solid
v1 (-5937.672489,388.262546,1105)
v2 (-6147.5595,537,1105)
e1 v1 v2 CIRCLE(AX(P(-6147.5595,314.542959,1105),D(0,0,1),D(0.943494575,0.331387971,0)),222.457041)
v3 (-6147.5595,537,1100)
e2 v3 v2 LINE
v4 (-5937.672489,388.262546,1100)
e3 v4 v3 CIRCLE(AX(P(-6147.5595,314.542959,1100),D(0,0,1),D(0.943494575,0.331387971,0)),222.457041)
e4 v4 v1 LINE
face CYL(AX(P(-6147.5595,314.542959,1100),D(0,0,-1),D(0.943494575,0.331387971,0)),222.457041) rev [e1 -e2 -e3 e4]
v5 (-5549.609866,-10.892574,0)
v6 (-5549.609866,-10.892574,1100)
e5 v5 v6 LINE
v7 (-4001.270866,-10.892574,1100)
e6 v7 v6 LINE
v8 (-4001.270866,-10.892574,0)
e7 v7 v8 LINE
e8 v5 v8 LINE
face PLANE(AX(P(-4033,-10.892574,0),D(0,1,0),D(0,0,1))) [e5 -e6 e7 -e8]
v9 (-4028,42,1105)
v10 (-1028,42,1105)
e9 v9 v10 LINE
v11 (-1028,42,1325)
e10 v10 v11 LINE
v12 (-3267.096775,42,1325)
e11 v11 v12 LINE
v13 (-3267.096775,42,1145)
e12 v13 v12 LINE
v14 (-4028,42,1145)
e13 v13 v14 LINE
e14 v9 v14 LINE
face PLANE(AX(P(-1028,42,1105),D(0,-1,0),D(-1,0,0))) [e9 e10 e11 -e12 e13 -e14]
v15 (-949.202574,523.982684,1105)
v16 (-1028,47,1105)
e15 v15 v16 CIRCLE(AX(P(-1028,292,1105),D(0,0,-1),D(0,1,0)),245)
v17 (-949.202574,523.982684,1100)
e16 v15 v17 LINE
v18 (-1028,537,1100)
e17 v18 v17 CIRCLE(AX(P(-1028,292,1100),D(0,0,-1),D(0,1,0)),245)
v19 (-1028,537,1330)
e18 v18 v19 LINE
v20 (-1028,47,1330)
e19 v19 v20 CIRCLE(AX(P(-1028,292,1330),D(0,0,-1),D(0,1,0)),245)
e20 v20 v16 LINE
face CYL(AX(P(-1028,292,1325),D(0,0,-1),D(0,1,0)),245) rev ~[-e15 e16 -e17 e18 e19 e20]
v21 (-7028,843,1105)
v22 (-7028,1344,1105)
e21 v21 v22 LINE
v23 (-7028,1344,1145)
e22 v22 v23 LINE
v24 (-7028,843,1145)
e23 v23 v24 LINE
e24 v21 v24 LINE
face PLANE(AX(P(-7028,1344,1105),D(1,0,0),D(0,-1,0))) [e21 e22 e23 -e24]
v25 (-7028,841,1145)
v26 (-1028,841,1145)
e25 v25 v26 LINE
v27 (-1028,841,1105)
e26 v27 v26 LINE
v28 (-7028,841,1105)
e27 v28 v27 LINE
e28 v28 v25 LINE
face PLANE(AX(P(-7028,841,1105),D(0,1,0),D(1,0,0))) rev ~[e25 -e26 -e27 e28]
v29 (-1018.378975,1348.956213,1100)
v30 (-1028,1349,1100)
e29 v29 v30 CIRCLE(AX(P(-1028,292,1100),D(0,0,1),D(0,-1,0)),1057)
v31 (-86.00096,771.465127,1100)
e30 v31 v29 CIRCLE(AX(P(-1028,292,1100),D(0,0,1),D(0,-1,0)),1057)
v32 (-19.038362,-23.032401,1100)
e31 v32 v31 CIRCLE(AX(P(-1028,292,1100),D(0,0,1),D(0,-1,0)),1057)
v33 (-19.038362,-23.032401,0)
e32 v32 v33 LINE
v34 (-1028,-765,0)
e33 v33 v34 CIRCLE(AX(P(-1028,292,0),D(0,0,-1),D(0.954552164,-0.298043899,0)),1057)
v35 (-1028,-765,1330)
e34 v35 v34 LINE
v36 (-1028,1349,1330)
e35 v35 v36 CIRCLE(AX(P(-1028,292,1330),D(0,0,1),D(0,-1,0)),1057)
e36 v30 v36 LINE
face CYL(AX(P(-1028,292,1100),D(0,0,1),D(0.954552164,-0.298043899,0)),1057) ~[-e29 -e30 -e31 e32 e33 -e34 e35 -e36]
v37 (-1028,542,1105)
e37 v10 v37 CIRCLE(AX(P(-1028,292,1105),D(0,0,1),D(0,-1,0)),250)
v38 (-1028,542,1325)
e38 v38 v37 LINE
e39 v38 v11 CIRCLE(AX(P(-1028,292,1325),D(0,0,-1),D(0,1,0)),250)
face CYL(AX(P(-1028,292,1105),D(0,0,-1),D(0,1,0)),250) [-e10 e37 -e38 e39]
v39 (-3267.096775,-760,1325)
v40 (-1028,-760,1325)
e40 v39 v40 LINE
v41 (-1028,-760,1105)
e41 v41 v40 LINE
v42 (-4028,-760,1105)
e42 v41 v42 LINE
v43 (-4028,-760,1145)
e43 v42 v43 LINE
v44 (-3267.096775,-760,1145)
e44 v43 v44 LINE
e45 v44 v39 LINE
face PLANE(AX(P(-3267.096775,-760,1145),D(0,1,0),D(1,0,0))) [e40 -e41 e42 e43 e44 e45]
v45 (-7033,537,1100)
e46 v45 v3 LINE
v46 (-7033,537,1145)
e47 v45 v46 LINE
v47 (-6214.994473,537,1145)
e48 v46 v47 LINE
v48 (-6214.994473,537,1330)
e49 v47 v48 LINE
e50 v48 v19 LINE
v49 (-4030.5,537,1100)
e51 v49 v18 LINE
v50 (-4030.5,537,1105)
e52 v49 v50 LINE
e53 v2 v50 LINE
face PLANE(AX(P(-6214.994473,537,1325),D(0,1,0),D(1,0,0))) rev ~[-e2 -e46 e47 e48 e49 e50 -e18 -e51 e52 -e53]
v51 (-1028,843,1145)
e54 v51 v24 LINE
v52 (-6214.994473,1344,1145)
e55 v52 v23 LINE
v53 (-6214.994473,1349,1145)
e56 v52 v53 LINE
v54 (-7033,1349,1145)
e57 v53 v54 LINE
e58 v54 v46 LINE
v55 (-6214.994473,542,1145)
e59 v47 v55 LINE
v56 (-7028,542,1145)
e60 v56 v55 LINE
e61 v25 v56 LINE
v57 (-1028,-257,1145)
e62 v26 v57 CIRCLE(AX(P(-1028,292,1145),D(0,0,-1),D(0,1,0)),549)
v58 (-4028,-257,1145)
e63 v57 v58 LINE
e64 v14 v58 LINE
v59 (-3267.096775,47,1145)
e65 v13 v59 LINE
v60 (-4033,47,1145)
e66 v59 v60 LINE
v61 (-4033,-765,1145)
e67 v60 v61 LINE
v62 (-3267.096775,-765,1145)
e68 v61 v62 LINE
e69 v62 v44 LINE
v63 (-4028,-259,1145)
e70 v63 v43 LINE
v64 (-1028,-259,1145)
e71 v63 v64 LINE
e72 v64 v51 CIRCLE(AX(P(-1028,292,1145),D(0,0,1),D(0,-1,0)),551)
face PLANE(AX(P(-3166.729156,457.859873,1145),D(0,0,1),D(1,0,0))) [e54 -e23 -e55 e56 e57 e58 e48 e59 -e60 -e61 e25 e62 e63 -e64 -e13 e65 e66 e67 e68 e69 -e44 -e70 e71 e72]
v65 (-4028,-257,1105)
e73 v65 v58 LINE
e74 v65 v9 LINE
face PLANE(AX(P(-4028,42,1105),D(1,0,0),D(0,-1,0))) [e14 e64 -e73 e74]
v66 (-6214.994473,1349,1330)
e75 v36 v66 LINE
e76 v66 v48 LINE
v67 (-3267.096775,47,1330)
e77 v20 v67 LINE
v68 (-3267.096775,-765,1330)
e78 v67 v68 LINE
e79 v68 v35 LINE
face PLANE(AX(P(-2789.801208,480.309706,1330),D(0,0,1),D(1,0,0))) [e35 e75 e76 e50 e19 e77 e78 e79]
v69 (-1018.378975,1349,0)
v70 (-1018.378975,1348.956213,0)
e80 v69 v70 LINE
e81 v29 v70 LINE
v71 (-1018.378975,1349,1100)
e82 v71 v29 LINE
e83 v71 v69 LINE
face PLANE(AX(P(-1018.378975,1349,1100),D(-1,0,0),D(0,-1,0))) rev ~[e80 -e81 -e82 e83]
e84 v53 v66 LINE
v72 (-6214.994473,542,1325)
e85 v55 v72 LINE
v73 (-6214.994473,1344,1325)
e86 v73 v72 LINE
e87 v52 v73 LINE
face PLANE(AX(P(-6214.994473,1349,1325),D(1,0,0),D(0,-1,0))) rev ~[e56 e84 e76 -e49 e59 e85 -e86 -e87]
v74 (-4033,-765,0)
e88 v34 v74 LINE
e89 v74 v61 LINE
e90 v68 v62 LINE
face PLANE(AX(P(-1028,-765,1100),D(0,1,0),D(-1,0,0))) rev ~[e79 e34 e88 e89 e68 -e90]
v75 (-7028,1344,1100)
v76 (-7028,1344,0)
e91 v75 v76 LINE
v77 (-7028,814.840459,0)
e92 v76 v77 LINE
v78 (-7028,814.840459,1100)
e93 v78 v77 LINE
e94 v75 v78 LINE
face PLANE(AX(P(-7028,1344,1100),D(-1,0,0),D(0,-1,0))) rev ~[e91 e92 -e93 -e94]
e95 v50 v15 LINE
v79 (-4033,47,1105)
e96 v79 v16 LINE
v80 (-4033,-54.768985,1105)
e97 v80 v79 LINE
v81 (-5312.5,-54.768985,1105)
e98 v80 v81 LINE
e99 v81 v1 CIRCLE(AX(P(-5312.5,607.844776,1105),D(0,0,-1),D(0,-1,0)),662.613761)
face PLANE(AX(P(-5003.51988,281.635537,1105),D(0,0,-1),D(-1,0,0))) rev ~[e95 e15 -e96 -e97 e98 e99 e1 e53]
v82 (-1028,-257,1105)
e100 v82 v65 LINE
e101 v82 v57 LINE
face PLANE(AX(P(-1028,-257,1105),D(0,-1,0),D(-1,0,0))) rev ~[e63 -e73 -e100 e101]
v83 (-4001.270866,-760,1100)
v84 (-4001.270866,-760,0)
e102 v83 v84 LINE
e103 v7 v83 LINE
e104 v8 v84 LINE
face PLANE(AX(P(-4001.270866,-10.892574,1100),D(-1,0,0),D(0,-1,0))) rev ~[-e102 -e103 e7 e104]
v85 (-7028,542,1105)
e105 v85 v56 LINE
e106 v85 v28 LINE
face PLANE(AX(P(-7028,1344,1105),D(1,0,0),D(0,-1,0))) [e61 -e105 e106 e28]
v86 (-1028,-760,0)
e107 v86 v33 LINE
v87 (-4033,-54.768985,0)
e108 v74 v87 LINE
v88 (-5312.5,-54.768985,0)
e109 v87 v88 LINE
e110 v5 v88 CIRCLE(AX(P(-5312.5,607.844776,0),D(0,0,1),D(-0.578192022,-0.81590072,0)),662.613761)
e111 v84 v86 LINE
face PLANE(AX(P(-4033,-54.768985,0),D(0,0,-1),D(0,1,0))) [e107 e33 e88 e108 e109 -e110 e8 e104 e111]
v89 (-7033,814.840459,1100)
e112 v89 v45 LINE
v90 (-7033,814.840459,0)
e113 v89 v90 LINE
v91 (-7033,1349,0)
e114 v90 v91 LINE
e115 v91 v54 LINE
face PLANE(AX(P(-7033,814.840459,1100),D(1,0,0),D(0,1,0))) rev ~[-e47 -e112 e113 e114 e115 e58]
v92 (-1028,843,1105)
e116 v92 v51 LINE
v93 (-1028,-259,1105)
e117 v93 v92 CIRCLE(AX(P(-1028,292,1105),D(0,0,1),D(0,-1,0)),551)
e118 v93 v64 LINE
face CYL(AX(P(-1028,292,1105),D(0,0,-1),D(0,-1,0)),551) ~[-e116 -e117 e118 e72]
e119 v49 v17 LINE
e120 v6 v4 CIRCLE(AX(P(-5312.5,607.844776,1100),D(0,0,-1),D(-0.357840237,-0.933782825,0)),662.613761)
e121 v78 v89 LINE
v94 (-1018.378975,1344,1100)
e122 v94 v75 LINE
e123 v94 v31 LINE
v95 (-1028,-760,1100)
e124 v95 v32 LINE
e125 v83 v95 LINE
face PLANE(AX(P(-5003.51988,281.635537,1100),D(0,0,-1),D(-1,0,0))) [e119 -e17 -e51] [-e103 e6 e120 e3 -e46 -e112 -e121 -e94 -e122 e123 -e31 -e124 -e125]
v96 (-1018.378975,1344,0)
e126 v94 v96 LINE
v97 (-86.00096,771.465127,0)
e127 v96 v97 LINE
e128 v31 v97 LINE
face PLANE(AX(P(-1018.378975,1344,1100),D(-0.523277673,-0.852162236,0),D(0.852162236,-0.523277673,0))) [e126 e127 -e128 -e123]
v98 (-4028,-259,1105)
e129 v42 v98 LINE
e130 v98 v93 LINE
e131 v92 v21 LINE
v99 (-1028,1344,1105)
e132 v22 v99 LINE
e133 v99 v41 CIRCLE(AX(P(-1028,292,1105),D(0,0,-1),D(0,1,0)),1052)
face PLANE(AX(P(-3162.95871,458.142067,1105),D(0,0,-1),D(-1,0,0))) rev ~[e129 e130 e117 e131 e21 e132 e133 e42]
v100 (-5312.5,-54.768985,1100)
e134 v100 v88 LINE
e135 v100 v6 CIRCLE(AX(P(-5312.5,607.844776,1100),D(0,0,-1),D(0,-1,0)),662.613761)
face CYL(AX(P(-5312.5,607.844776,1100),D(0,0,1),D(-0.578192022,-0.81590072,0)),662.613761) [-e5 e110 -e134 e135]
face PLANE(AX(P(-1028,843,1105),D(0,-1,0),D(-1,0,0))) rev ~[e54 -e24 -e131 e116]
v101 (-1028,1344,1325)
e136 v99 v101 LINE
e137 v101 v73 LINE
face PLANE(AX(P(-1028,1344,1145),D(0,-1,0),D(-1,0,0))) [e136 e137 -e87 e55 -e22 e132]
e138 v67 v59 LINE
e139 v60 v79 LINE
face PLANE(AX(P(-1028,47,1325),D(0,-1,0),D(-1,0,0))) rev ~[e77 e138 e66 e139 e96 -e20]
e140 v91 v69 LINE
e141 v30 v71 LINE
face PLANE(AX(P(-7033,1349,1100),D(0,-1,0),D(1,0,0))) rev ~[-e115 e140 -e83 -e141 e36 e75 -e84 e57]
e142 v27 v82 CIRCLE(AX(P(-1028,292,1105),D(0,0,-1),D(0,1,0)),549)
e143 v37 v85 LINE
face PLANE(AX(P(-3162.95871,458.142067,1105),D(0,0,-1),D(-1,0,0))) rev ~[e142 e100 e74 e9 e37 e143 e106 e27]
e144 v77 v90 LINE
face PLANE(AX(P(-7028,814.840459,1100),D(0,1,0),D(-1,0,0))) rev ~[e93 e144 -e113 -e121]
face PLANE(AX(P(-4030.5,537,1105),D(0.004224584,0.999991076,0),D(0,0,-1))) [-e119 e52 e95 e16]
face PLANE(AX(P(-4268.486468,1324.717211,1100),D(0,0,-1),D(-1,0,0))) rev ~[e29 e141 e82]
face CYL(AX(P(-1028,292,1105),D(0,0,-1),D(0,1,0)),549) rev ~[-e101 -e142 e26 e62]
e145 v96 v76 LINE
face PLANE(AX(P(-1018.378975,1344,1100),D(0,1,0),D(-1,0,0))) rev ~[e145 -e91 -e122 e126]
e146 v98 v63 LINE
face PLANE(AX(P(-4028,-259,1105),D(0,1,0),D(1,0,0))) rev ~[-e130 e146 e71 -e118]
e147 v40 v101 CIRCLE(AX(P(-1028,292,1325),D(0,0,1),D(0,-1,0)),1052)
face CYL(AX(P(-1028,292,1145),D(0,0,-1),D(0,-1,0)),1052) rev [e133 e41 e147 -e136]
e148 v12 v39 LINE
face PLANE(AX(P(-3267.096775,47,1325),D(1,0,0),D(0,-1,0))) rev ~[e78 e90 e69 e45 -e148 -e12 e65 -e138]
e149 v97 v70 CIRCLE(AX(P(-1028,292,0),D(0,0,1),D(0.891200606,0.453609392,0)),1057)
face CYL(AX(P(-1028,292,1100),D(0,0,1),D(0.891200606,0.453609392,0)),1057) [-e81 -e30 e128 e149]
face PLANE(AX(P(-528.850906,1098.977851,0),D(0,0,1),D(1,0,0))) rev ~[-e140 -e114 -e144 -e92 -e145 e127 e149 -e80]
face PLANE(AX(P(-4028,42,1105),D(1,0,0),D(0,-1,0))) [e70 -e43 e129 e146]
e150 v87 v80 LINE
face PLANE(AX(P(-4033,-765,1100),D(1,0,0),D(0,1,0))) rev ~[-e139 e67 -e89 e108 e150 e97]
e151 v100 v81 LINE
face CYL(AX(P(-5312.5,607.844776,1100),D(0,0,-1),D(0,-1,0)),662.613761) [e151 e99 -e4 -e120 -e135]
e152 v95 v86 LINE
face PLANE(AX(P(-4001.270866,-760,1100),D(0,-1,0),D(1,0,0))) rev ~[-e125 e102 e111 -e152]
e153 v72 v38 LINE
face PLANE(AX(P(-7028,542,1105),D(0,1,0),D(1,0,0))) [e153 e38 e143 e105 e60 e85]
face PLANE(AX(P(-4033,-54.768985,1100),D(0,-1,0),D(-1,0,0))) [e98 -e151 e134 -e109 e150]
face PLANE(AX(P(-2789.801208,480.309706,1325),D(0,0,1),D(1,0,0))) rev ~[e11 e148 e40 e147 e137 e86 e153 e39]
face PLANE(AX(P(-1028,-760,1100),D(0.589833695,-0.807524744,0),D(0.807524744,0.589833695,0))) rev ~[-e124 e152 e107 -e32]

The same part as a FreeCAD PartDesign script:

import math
import FreeCAD as App
import Part
import Sketcher
from FreeCAD import Vector


def add_polygon(sketch, points):
    """Adds a closed chain of lines whose ends are joined by coincident constraints."""
    first, n = sketch.GeometryCount, len(points)
    for a, b in zip(points, points[1:] + points[:1]):
        sketch.addGeometry(Part.LineSegment(App.Vector(*a, 0), App.Vector(*b, 0)), False)
    for i in range(n):
        sketch.addConstraint(Sketcher.Constraint("Coincident", first + i, 2, first + (i + 1) % n, 1))

doc = App.newDocument("Part")
body = doc.addObject("PartDesign::Body", "Body")

# Sketch on XY plane
sketch1 = body.newObject("Sketcher::SketchObject", "Sketch")
sketch1.AttachmentSupport = (doc.getObject("XY_Plane"), [""])
sketch1.MapMode = "FlatFace"
sketch1.AttachmentOffset = App.Placement(Vector(0, 0, 1100), App.Rotation())
sketch1.addGeometry([
    Part.LineSegment(Vector(-1028, 1344, 0), Vector(-7028, 1344, 0)),  # 0
    Part.LineSegment(Vector(-7028, 1344, 0), Vector(-7028, 542, 0)),  # 1
    Part.LineSegment(Vector(-7028, 542, 0), Vector(-1028, 542, 0)),  # 2
    Part.ArcOfCircle(Part.Circle(Vector(-1028, 292, 0), Vector(0, 0, 1), 250), math.radians(-90), math.radians(90)),  # 3
    Part.LineSegment(Vector(-1028, 42, 0), Vector(-4028, 42, 0)),  # 4
    Part.LineSegment(Vector(-4028, 42, 0), Vector(-4028, -760, 0)),  # 5
    Part.LineSegment(Vector(-4028, -760, 0), Vector(-1028, -760, 0)),  # 6
    Part.ArcOfCircle(Part.Circle(Vector(-1028, 292, 0), Vector(0, 0, 1), 1052), math.radians(-90), math.radians(90)),  # 7
], False)
sketch1.addConstraint([
    Sketcher.Constraint("Coincident", 0, 2, 1, 1),
    Sketcher.Constraint("Coincident", 1, 2, 2, 1),
    Sketcher.Constraint("Tangent", 2, 2, 3, 2),
    Sketcher.Constraint("Tangent", 3, 1, 4, 1),
    Sketcher.Constraint("Coincident", 4, 2, 5, 1),
    Sketcher.Constraint("Coincident", 5, 2, 6, 1),
    Sketcher.Constraint("Coincident", 6, 2, 7, 1),
    Sketcher.Constraint("Coincident", 7, 2, 0, 1),
    Sketcher.Constraint("Horizontal", 0),
    Sketcher.Constraint("Vertical", 1),
    Sketcher.Constraint("Horizontal", 2),
    Sketcher.Constraint("Horizontal", 4),
    Sketcher.Constraint("Vertical", 5),
    Sketcher.Constraint("Horizontal", 6),
    Sketcher.Constraint("Coincident", 7, 3, 3, 3),
    Sketcher.Constraint("Vertical", 3, 1, 6, 2),
    Sketcher.Constraint("Equal", 0, 2),
    Sketcher.Constraint("Radius", 3, 250.0),
    Sketcher.Constraint("Radius", 7, 1052.0),
    Sketcher.Constraint("DistanceX", 0, 2, 0, 1, 6000.0),
    Sketcher.Constraint("DistanceX", 4, 2, 4, 1, 3000.0),
    Sketcher.Constraint("DistanceX", 3, 3, -1, 1, 1028.0),
    Sketcher.Constraint("DistanceY", -1, 1, 3, 3, 292.0),
])
pad1 = body.newObject("PartDesign::Pad", "Pad")
pad1.Profile = sketch1
pad1.Length = 5

# Sketch on XY plane
sketch2 = body.newObject("Sketcher::SketchObject", "Sketch001")
sketch2.AttachmentSupport = (doc.getObject("XY_Plane"), [""])
sketch2.MapMode = "FlatFace"
sketch2.AttachmentOffset = App.Placement(Vector(0, 0, 1105), App.Rotation())
sketch2.addGeometry([
    Part.LineSegment(Vector(-1028, 1349, 0), Vector(-7033, 1349, 0)),  # 0
    Part.LineSegment(Vector(-7033, 1349, 0), Vector(-7033, 537, 0)),  # 1
    Part.LineSegment(Vector(-7033, 537, 0), Vector(-1028, 537, 0)),  # 2
    Part.ArcOfCircle(Part.Circle(Vector(-1028, 292, 0), Vector(0, 0, 1), 245), math.radians(-90), math.radians(90)),  # 3
    Part.LineSegment(Vector(-1028, 47, 0), Vector(-4033, 47, 0)),  # 4
    Part.LineSegment(Vector(-4033, 47, 0), Vector(-4033, -765, 0)),  # 5
    Part.LineSegment(Vector(-4033, -765, 0), Vector(-1028, -765, 0)),  # 6
    Part.ArcOfCircle(Part.Circle(Vector(-1028, 292, 0), Vector(0, 0, 1), 1057), math.radians(-90), math.radians(90)),  # 7
    Part.LineSegment(Vector(-7028, 1344, 0), Vector(-1028, 1344, 0)),  # 8
    Part.ArcOfCircle(Part.Circle(Vector(-1028, 292, 0), Vector(0, 0, 1), 1052), math.radians(-90), math.radians(90)),  # 9
    Part.LineSegment(Vector(-1028, -760, 0), Vector(-4028, -760, 0)),  # 10
    Part.LineSegment(Vector(-4028, -760, 0), Vector(-4028, 42, 0)),  # 11
    Part.LineSegment(Vector(-4028, 42, 0), Vector(-1028, 42, 0)),  # 12
    Part.ArcOfCircle(Part.Circle(Vector(-1028, 292, 0), Vector(0, 0, 1), 250), math.radians(-90), math.radians(90)),  # 13
    Part.LineSegment(Vector(-1028, 542, 0), Vector(-7028, 542, 0)),  # 14
    Part.LineSegment(Vector(-7028, 542, 0), Vector(-7028, 1344, 0)),  # 15
], False)
sketch2.addConstraint([
    Sketcher.Constraint("Coincident", 0, 2, 1, 1),
    Sketcher.Constraint("Coincident", 1, 2, 2, 1),
    Sketcher.Constraint("Tangent", 2, 2, 3, 2),
    Sketcher.Constraint("Tangent", 3, 1, 4, 1),
    Sketcher.Constraint("Coincident", 4, 2, 5, 1),
    Sketcher.Constraint("Coincident", 5, 2, 6, 1),
    Sketcher.Constraint("Coincident", 6, 2, 7, 1),
    Sketcher.Constraint("Coincident", 7, 2, 0, 1),
    Sketcher.Constraint("Coincident", 8, 2, 9, 2),
    Sketcher.Constraint("Coincident", 9, 1, 10, 1),
    Sketcher.Constraint("Coincident", 10, 2, 11, 1),
    Sketcher.Constraint("Coincident", 11, 2, 12, 1),
    Sketcher.Constraint("Tangent", 12, 2, 13, 1),
    Sketcher.Constraint("Tangent", 13, 2, 14, 1),
    Sketcher.Constraint("Coincident", 14, 2, 15, 1),
    Sketcher.Constraint("Coincident", 15, 2, 8, 1),
    Sketcher.Constraint("Horizontal", 0),
    Sketcher.Constraint("Vertical", 1),
    Sketcher.Constraint("Horizontal", 2),
    Sketcher.Constraint("Horizontal", 4),
    Sketcher.Constraint("Vertical", 5),
    Sketcher.Constraint("Horizontal", 6),
    Sketcher.Constraint("Horizontal", 8),
    Sketcher.Constraint("Horizontal", 10),
    Sketcher.Constraint("Vertical", 11),
    Sketcher.Constraint("Horizontal", 12),
    Sketcher.Constraint("Horizontal", 14),
    Sketcher.Constraint("Vertical", 15),
    Sketcher.Constraint("Coincident", 7, 3, 3, 3),
    Sketcher.Constraint("Coincident", 9, 3, 3, 3),
    Sketcher.Constraint("Coincident", 13, 3, 3, 3),
    Sketcher.Constraint("Vertical", 3, 1, 6, 2),
    Sketcher.Constraint("Equal", 0, 2),
    Sketcher.Constraint("Equal", 10, 12),
    Sketcher.Constraint("Equal", 8, 14),
    Sketcher.Constraint("Radius", 3, 245.0),
    Sketcher.Constraint("Radius", 7, 1057.0),
    Sketcher.Constraint("Radius", 9, 1052.0),
    Sketcher.Constraint("Radius", 13, 250.0),
    Sketcher.Constraint("DistanceX", 0, 2, 0, 1, 6005.0),
    Sketcher.Constraint("DistanceX", 4, 2, 4, 1, 3005.0),
    Sketcher.Constraint("DistanceX", 8, 1, 8, 2, 6000.0),
    Sketcher.Constraint("DistanceX", 10, 2, 10, 1, 3000.0),
    Sketcher.Constraint("DistanceX", 3, 3, -1, 1, 1028.0),
    Sketcher.Constraint("DistanceY", -1, 1, 3, 3, 292.0),
])
pad2 = body.newObject("PartDesign::Pad", "Pad001")
pad2.Profile = sketch2
pad2.Type = "TwoLengths"
pad2.Length = 40
pad2.Length2 = 5

# Sketch on XY plane
sketch3 = body.newObject("Sketcher::SketchObject", "Sketch002")
sketch3.AttachmentSupport = (doc.getObject("XY_Plane"), [""])
sketch3.MapMode = "FlatFace"
sketch3.AttachmentOffset = App.Placement(Vector(0, 0, 1105), App.Rotation())
sketch3.addGeometry([
    Part.LineSegment(Vector(-4028, -259, 0), Vector(-1028, -259, 0)),  # 0
    Part.ArcOfCircle(Part.Circle(Vector(-1028, 292, 0), Vector(0, 0, 1), 551), math.radians(-90), math.radians(90)),  # 1
    Part.LineSegment(Vector(-1028, 843, 0), Vector(-7028, 843, 0)),  # 2
    Part.LineSegment(Vector(-7028, 843, 0), Vector(-7028, 841, 0)),  # 3
    Part.LineSegment(Vector(-7028, 841, 0), Vector(-1028, 841, 0)),  # 4
    Part.ArcOfCircle(Part.Circle(Vector(-1028, 292, 0), Vector(0, 0, 1), 549), math.radians(-90), math.radians(90)),  # 5
    Part.LineSegment(Vector(-1028, -257, 0), Vector(-4028, -257, 0)),  # 6
    Part.LineSegment(Vector(-4028, -257, 0), Vector(-4028, -259, 0)),  # 7
], False)
sketch3.addConstraint([
    Sketcher.Constraint("Tangent", 0, 2, 1, 1),
    Sketcher.Constraint("Tangent", 1, 2, 2, 1),
    Sketcher.Constraint("Coincident", 2, 2, 3, 1),
    Sketcher.Constraint("Coincident", 3, 2, 4, 1),
    Sketcher.Constraint("Tangent", 4, 2, 5, 2),
    Sketcher.Constraint("Tangent", 5, 1, 6, 1),
    Sketcher.Constraint("Coincident", 6, 2, 7, 1),
    Sketcher.Constraint("Coincident", 7, 2, 0, 1),
    Sketcher.Constraint("Horizontal", 0),
    Sketcher.Constraint("Horizontal", 2),
    Sketcher.Constraint("Vertical", 3),
    Sketcher.Constraint("Horizontal", 4),
    Sketcher.Constraint("Horizontal", 6),
    Sketcher.Constraint("Vertical", 7),
    Sketcher.Constraint("Coincident", 5, 3, 1, 3),
    Sketcher.Constraint("Radius", 1, 551.0),
    Sketcher.Constraint("Radius", 5, 549.0),
    Sketcher.Constraint("DistanceX", 0, 1, 0, 2, 3000.0),
    Sketcher.Constraint("DistanceX", 2, 2, 2, 1, 6000.0),
    Sketcher.Constraint("DistanceX", 1, 3, -1, 1, 1028.0),
    Sketcher.Constraint("DistanceY", -1, 1, 1, 3, 292.0),
])
pad3 = body.newObject("PartDesign::Pad", "Pad002")
pad3.Profile = sketch3
pad3.Length = 40

# Sketch on XY plane
sketch4 = body.newObject("Sketcher::SketchObject", "Sketch003")
sketch4.AttachmentSupport = (doc.getObject("XY_Plane"), [""])
sketch4.MapMode = "FlatFace"
sketch4.AttachmentOffset = App.Placement(Vector(0, 0, 1145), App.Rotation())
sketch4.addGeometry([
    Part.LineSegment(Vector(-6214.994473, 1344, 0), Vector(-1028, 1344, 0)),  # 0
    Part.ArcOfCircle(Part.Circle(Vector(-1028, 292, 0), Vector(0, 0, 1), 1052), math.radians(-90), math.radians(90)),  # 1
    Part.LineSegment(Vector(-1028, -760, 0), Vector(-3267.096775, -760, 0)),  # 2
    Part.LineSegment(Vector(-3267.096775, -760, 0), Vector(-3267.096775, -765, 0)),  # 3
    Part.LineSegment(Vector(-3267.096775, -765, 0), Vector(-1028, -765, 0)),  # 4
    Part.ArcOfCircle(Part.Circle(Vector(-1028, 292, 0), Vector(0, 0, 1), 1057), math.radians(-90), math.radians(90)),  # 5
    Part.LineSegment(Vector(-1028, 1349, 0), Vector(-6214.994473, 1349, 0)),  # 6
    Part.LineSegment(Vector(-6214.994473, 1349, 0), Vector(-6214.994473, 1344, 0)),  # 7
    Part.LineSegment(Vector(-1028, 542, 0), Vector(-6214.994473, 542, 0)),  # 8
    Part.LineSegment(Vector(-6214.994473, 542, 0), Vector(-6214.994473, 537, 0)),  # 9
    Part.LineSegment(Vector(-6214.994473, 537, 0), Vector(-1028, 537, 0)),  # 10
    Part.ArcOfCircle(Part.Circle(Vector(-1028, 292, 0), Vector(0, 0, 1), 245), math.radians(-90), math.radians(90)),  # 11
    Part.LineSegment(Vector(-1028, 47, 0), Vector(-3267.096775, 47, 0)),  # 12
    Part.LineSegment(Vector(-3267.096775, 47, 0), Vector(-3267.096775, 42, 0)),  # 13
    Part.LineSegment(Vector(-3267.096775, 42, 0), Vector(-1028, 42, 0)),  # 14
    Part.ArcOfCircle(Part.Circle(Vector(-1028, 292, 0), Vector(0, 0, 1), 250), math.radians(-90), math.radians(90)),  # 15
], False)
sketch4.addConstraint([
    Sketcher.Constraint("Coincident", 0, 2, 1, 2),
    Sketcher.Constraint("Coincident", 1, 1, 2, 1),
    Sketcher.Constraint("Coincident", 2, 2, 3, 1),
    Sketcher.Constraint("Coincident", 3, 2, 4, 1),
    Sketcher.Constraint("Coincident", 4, 2, 5, 1),
    Sketcher.Constraint("Coincident", 5, 2, 6, 1),
    Sketcher.Constraint("Coincident", 6, 2, 7, 1),
    Sketcher.Constraint("Coincident", 7, 2, 0, 1),
    Sketcher.Constraint("Coincident", 8, 2, 9, 1),
    Sketcher.Constraint("Coincident", 9, 2, 10, 1),
    Sketcher.Constraint("Tangent", 10, 2, 11, 2),
    Sketcher.Constraint("Tangent", 11, 1, 12, 1),
    Sketcher.Constraint("Coincident", 12, 2, 13, 1),
    Sketcher.Constraint("Coincident", 13, 2, 14, 1),
    Sketcher.Constraint("Tangent", 14, 2, 15, 1),
    Sketcher.Constraint("Tangent", 15, 2, 8, 1),
    Sketcher.Constraint("Horizontal", 0),
    Sketcher.Constraint("Horizontal", 2),
    Sketcher.Constraint("Vertical", 3),
    Sketcher.Constraint("Horizontal", 4),
    Sketcher.Constraint("Horizontal", 6),
    Sketcher.Constraint("Vertical", 7),
    Sketcher.Constraint("Horizontal", 8),
    Sketcher.Constraint("Vertical", 9),
    Sketcher.Constraint("Horizontal", 10),
    Sketcher.Constraint("Horizontal", 12),
    Sketcher.Constraint("Vertical", 13),
    Sketcher.Constraint("Horizontal", 14),
    Sketcher.Constraint("Coincident", 5, 3, 1, 3),
    Sketcher.Constraint("Coincident", 11, 3, 1, 3),
    Sketcher.Constraint("Coincident", 15, 3, 1, 3),
    Sketcher.Constraint("Vertical", 15, 3, 0, 2),
    Sketcher.Constraint("Vertical", 7, 2, 8, 2),
    Sketcher.Constraint("Vertical", 3, 2, 12, 2),
    Sketcher.Constraint("Equal", 2, 4),
    Sketcher.Constraint("Equal", 0, 6),
    Sketcher.Constraint("Equal", 4, 12),
    Sketcher.Constraint("Equal", 7, 9),
    Sketcher.Constraint("Radius", 1, 1052.0),
    Sketcher.Constraint("Radius", 5, 1057.0),
    Sketcher.Constraint("Radius", 11, 245.0),
    Sketcher.Constraint("DistanceX", 1, 3, -1, 1, 1028.0),
    Sketcher.Constraint("DistanceY", -1, 1, 1, 3, 292.0),
    Sketcher.Constraint("DistanceX", 0, 1, 0, 2, 5186.994473),
    Sketcher.Constraint("DistanceX", 2, 2, 2, 1, 2239.096775),
])
pad4 = body.newObject("PartDesign::Pad", "Pad003")
pad4.Profile = sketch4
pad4.Length = 180

# Sketch on XY plane
sketch5 = body.newObject("Sketcher::SketchObject", "Sketch004")
sketch5.AttachmentSupport = (doc.getObject("XY_Plane"), [""])
sketch5.MapMode = "FlatFace"
sketch5.AttachmentOffset = App.Placement(Vector(0, 0, 1325), App.Rotation())
sketch5.addGeometry([
    Part.LineSegment(Vector(-3267.096775, -765, 0), Vector(-1028, -765, 0)),  # 0
    Part.ArcOfCircle(Part.Circle(Vector(-1028, 292, 0), Vector(0, 0, 1), 1057), math.radians(-90), math.radians(90)),  # 1
    Part.LineSegment(Vector(-1028, 1349, 0), Vector(-6214.994473, 1349, 0)),  # 2
    Part.LineSegment(Vector(-6214.994473, 1349, 0), Vector(-6214.994473, 537, 0)),  # 3
    Part.LineSegment(Vector(-6214.994473, 537, 0), Vector(-1028, 537, 0)),  # 4
    Part.ArcOfCircle(Part.Circle(Vector(-1028, 292, 0), Vector(0, 0, 1), 245), math.radians(-90), math.radians(90)),  # 5
    Part.LineSegment(Vector(-1028, 47, 0), Vector(-3267.096775, 47, 0)),  # 6
    Part.LineSegment(Vector(-3267.096775, 47, 0), Vector(-3267.096775, -765, 0)),  # 7
], False)
sketch5.addConstraint([
    Sketcher.Constraint("Coincident", 0, 2, 1, 1),
    Sketcher.Constraint("Coincident", 1, 2, 2, 1),
    Sketcher.Constraint("Coincident", 2, 2, 3, 1),
    Sketcher.Constraint("Coincident", 3, 2, 4, 1),
    Sketcher.Constraint("Tangent", 4, 2, 5, 2),
    Sketcher.Constraint("Tangent", 5, 1, 6, 1),
    Sketcher.Constraint("Coincident", 6, 2, 7, 1),
    Sketcher.Constraint("Coincident", 7, 2, 0, 1),
    Sketcher.Constraint("Horizontal", 0),
    Sketcher.Constraint("Horizontal", 2),
    Sketcher.Constraint("Vertical", 3),
    Sketcher.Constraint("Horizontal", 4),
    Sketcher.Constraint("Horizontal", 6),
    Sketcher.Constraint("Vertical", 7),
    Sketcher.Constraint("Coincident", 5, 3, 1, 3),
    Sketcher.Constraint("Vertical", 5, 3, 0, 2),
    Sketcher.Constraint("Equal", 2, 4),
    Sketcher.Constraint("Radius", 1, 1057.0),
    Sketcher.Constraint("Radius", 5, 245.0),
    Sketcher.Constraint("DistanceX", 1, 3, -1, 1, 1028.0),
    Sketcher.Constraint("DistanceY", -1, 1, 1, 3, 292.0),
    Sketcher.Constraint("DistanceX", 0, 1, 0, 2, 2239.096775),
    Sketcher.Constraint("DistanceX", 2, 2, 2, 1, 5186.994473),
])
pad5 = body.newObject("PartDesign::Pad", "Pad004")
pad5.Profile = sketch5
pad5.Length = 5

# Sketch on XY plane
sketch6 = body.newObject("Sketcher::SketchObject", "Sketch005")
sketch6.AttachmentSupport = (doc.getObject("XY_Plane"), [""])
sketch6.MapMode = "FlatFace"
sketch6.AttachmentOffset = App.Placement(Vector(0, 0, 1100), App.Rotation())
add_polygon(sketch6, [(-7033, 1349), (-1018.378975, 1349), (-1018.378975, 1344), (-7028, 1344), (-7028, 814.840459), (-7033, 814.840459)])  # lines 0-5
sketch6.addConstraint([
    Sketcher.Constraint("Horizontal", 0),
    Sketcher.Constraint("Vertical", 1),
    Sketcher.Constraint("Horizontal", 2),
    Sketcher.Constraint("Vertical", 3),
    Sketcher.Constraint("Horizontal", 4),
    Sketcher.Constraint("Vertical", 5),
    Sketcher.Constraint("Equal", 4, 1),
    Sketcher.Constraint("DistanceX", 4, 2, 4, 1, 5.0),
    Sketcher.Constraint("DistanceY", -1, 1, 0, 2, 1349.0),
    Sketcher.Constraint("DistanceX", 2, 2, -1, 1, 7028.0),
    Sketcher.Constraint("DistanceY", 3, 2, 3, 1, 529.159541),
    Sketcher.Constraint("DistanceX", 0, 1, 0, 2, 6014.621025),
])
pad6 = body.newObject("PartDesign::Pad", "Pad005")
pad6.Profile = sketch6
pad6.Length = 1100
pad6.Reversed = True

# Sketch on XY plane
sketch7 = body.newObject("Sketcher::SketchObject", "Sketch006")
sketch7.AttachmentSupport = (doc.getObject("XY_Plane"), [""])
sketch7.MapMode = "FlatFace"
sketch7.AttachmentOffset = App.Placement(Vector(0, 0, 1100), App.Rotation())
sketch7.addGeometry([
    Part.LineSegment(Vector(-1018.378975, 1344, 0), Vector(-1018.378975, 1348.956213, 0)),
    Part.ArcOfCircle(Part.Circle(Vector(-1028, 292, 0), Vector(0, 0, 1), 1057), math.radians(26.975496), math.radians(89.478475)),
    Part.LineSegment(Vector(-86.00096, 771.465127, 0), Vector(-1018.378975, 1344, 0)),
], False)
sketch7.addConstraint([
    Sketcher.Constraint("Coincident", 0, 2, 1, 2),
    Sketcher.Constraint("Coincident", 1, 1, 2, 1),
    Sketcher.Constraint("Coincident", 2, 2, 0, 1),
    Sketcher.Constraint("Vertical", 0),
    Sketcher.Constraint("Radius", 1, 1057.0),
    Sketcher.Constraint("DistanceX", 1, 3, -1, 1, 1028.0),
    Sketcher.Constraint("DistanceY", -1, 1, 1, 3, 292.0),
    Sketcher.Constraint("DistanceY", -1, 1, 2, 2, 1344.0),
    Sketcher.Constraint("Distance", 2, 1094.13205),
    Sketcher.Constraint("DistanceY", 0, 1, 0, 2, 4.956213),
])
pad7 = body.newObject("PartDesign::Pad", "Pad006")
pad7.Profile = sketch7
pad7.Length = 1100
pad7.Reversed = True

# Sketch on XY plane
sketch8 = body.newObject("Sketcher::SketchObject", "Sketch007")
sketch8.AttachmentSupport = (doc.getObject("XY_Plane"), [""])
sketch8.MapMode = "FlatFace"
sketch8.AttachmentOffset = App.Placement(Vector(0, 0, 1100), App.Rotation())
sketch8.addGeometry([
    Part.LineSegment(Vector(-1028, -760, 0), Vector(-19.038362, -23.032401, 0)),  # 0
    Part.ArcOfCircle(Part.Circle(Vector(-1028, 292, 0), Vector(0, 0, 1), 1057), math.radians(-90), math.radians(-17.340153)),  # 1
    Part.LineSegment(Vector(-1028, -765, 0), Vector(-4033, -765, 0)),  # 2
    Part.LineSegment(Vector(-4033, -765, 0), Vector(-4033, -10.892574, 0)),  # 3
    Part.LineSegment(Vector(-4033, -10.892574, 0), Vector(-4001.270866, -10.892574, 0)),  # 4
    Part.LineSegment(Vector(-4001.270866, -10.892574, 0), Vector(-4001.270866, -760, 0)),  # 5
    Part.LineSegment(Vector(-4001.270866, -760, 0), Vector(-1028, -760, 0)),  # 6
], False)
sketch8.addConstraint([
    Sketcher.Constraint("Coincident", 0, 2, 1, 2),
    Sketcher.Constraint("Coincident", 1, 1, 2, 1),
    Sketcher.Constraint("Coincident", 2, 2, 3, 1),
    Sketcher.Constraint("Coincident", 3, 2, 4, 1),
    Sketcher.Constraint("Coincident", 4, 2, 5, 1),
    Sketcher.Constraint("Coincident", 5, 2, 6, 1),
    Sketcher.Constraint("Coincident", 6, 2, 0, 1),
    Sketcher.Constraint("Horizontal", 2),
    Sketcher.Constraint("Vertical", 3),
    Sketcher.Constraint("Horizontal", 4),
    Sketcher.Constraint("Vertical", 5),
    Sketcher.Constraint("Horizontal", 6),
    Sketcher.Constraint("Radius", 1, 1057.0),
    Sketcher.Constraint("DistanceX", 2, 2, 2, 1, 3005.0),
    Sketcher.Constraint("DistanceX", 1, 3, -1, 1, 1028.0),
    Sketcher.Constraint("DistanceY", -1, 1, 1, 3, 292.0),
    Sketcher.Constraint("DistanceX", 2, 2, -1, 1, 4033.0),
    Sketcher.Constraint("DistanceY", 5, 2, -1, 1, 760.0),
    Sketcher.Constraint("DistanceX", 6, 2, -1, 1, 1028.0),
    Sketcher.Constraint("DistanceY", 0, 2, -1, 1, 23.032401),
    Sketcher.Constraint("DistanceX", 4, 1, 4, 2, 31.729134),
    Sketcher.Constraint("DistanceY", 3, 1, 3, 2, 754.107426),
])
pad8 = body.newObject("PartDesign::Pad", "Pad007")
pad8.Profile = sketch8
pad8.Length = 1100
pad8.Reversed = True

# Sketch on YZ plane
sketch9 = body.newObject("Sketcher::SketchObject", "Sketch008")
sketch9.AttachmentSupport = (doc.getObject("YZ_Plane"), [""])
sketch9.MapMode = "FlatFace"
sketch9.AttachmentOffset = App.Placement(Vector(0, 0, -4033), App.Rotation())
add_polygon(sketch9, [(-10.892574, 0), (-54.768985, 0), (-54.768985, 1100), (-10.892574, 1100)])  # lines 0-3
sketch9.addConstraint([
    Sketcher.Constraint("Horizontal", 0),
    Sketcher.Constraint("Vertical", 1),
    Sketcher.Constraint("Horizontal", 2),
    Sketcher.Constraint("Vertical", 3),
    Sketcher.Constraint("PointOnObject", 0, 2, -1),
    Sketcher.Constraint("DistanceY", 1, 1, 1, 2, 1100.0),
    Sketcher.Constraint("DistanceX", 0, 2, 0, 1, 43.876411),
    Sketcher.Constraint("DistanceX", 0, 2, -1, 1, 54.768985),
])
pad9 = body.newObject("PartDesign::Pad", "Pad008")
pad9.Profile = sketch9
pad9.Length = 2559
pad9.Reversed = True

# Sketch on XY plane
sketch10 = body.newObject("Sketcher::SketchObject", "Sketch009")
sketch10.AttachmentSupport = (doc.getObject("XY_Plane"), [""])
sketch10.MapMode = "FlatFace"
sketch10.AttachmentOffset = App.Placement(Vector(0, 0, 1100), App.Rotation())
sketch10.addGeometry([
    Part.LineSegment(Vector(-4030.5, 537, 0), Vector(-6147.5595, 537, 0)),  # 0
    Part.ArcOfCircle(Part.Circle(Vector(-6147.5595, 314.542959, 0), Vector(0, 0, 1), 222.457041), math.radians(19.353041), math.radians(90)),  # 1
    Part.ArcOfCircle(Part.Circle(Vector(-5312.5, 607.844776, 0), Vector(0, 0, 1), 662.613761), math.radians(-160.646959), math.radians(-90)),  # 2
    Part.LineSegment(Vector(-5312.5, -54.768985, 0), Vector(-4033, -54.768985, 0)),  # 3
    Part.LineSegment(Vector(-4033, -54.768985, 0), Vector(-4030.5, 537, 0)),  # 4
], False)
sketch10.addConstraint([
    Sketcher.Constraint("Tangent", 0, 2, 1, 2),
    Sketcher.Constraint("Tangent", 1, 1, 2, 1),
    Sketcher.Constraint("Tangent", 2, 2, 3, 1),
    Sketcher.Constraint("Coincident", 3, 2, 4, 1),
    Sketcher.Constraint("Coincident", 4, 2, 0, 1),
    Sketcher.Constraint("Horizontal", 0),
    Sketcher.Constraint("Horizontal", 3),
    Sketcher.Constraint("DistanceX", 3, 1, 3, 2, 1279.5),
    Sketcher.Constraint("DistanceY", -1, 1, 0, 2, 537.0),
    Sketcher.Constraint("DistanceX", 3, 2, -1, 1, 4033.0),
    Sketcher.Constraint("DistanceX", 2, 3, 4, 2, 1282.0),
    Sketcher.Constraint("Radius", 1, 222.457041),
    Sketcher.Constraint("Radius", 2, 662.613761),
    Sketcher.Constraint("DistanceX", 0, 2, 0, 1, 2117.0595),
])
pad10 = body.newObject("PartDesign::Pad", "Pad009")
pad10.Profile = sketch10
pad10.Length = 5

# Sketch on an angled plane
sketch11 = body.newObject("Sketcher::SketchObject", "Sketch010")
sketch11.Placement = App.Placement(Vector(-4032.696649, 17.036617, 0), App.Rotation(Vector(0, 0, -1), Vector(0.004224584, 0.999991076, 0), Vector(0.999991076, -0.004224584, 0), "ZXY"))
add_polygon(sketch11, [(-1105, 519.968022), (-1105, 29.96365), (-1100, 29.96365), (-1100, 519.968022)])  # lines 0-3
sketch11.addConstraint([
    Sketcher.Constraint("Vertical", 0),
    Sketcher.Constraint("Horizontal", 1),
    Sketcher.Constraint("Vertical", 2),
    Sketcher.Constraint("Horizontal", 3),
    Sketcher.Constraint("DistanceX", 1, 1, 1, 2, 5.0),
    Sketcher.Constraint("DistanceX", 0, 2, -1, 1, 1105.0),
    Sketcher.Constraint("DistanceY", 0, 2, 0, 1, 490.004372),
    Sketcher.Constraint("DistanceY", -1, 1, 0, 2, 29.96365),
])
pad11 = body.newObject("PartDesign::Pad", "Pad010")
pad11.Profile = sketch11
pad11.Length = 3500

# Sketch on XY plane
sketch12 = body.newObject("Sketcher::SketchObject", "Sketch011")
sketch12.AttachmentSupport = (doc.getObject("XY_Plane"), [""])
sketch12.MapMode = "FlatFace"
sketch12.AttachmentOffset = App.Placement(Vector(0, 0, 1100), App.Rotation())
sketch12.addGeometry([
    Part.LineSegment(Vector(-5312.5, -181.341832, 0), Vector(-5312.5, -54.768985, 0)),  # 0
    Part.ArcOfCircle(Part.Circle(Vector(-5312.5, 607.844776, 0), Vector(0, 0, 1), 662.613761), math.radians(-125.323479), math.radians(-90)),  # 1
    Part.LineSegment(Vector(-5695.617991, 67.217731, 0), Vector(-6649.48261, 67.217731, 0)),  # 2
    Part.LineSegment(Vector(-6649.48261, 67.217731, 0), Vector(-6649.48261, -181.341832, 0)),  # 3
    Part.LineSegment(Vector(-6649.48261, -181.341832, 0), Vector(-5312.5, -181.341832, 0)),  # 4
], False)
sketch12.addConstraint([
    Sketcher.Constraint("Coincident", 0, 2, 1, 2),
    Sketcher.Constraint("Coincident", 1, 1, 2, 1),
    Sketcher.Constraint("Coincident", 2, 2, 3, 1),
    Sketcher.Constraint("Coincident", 3, 2, 4, 1),
    Sketcher.Constraint("Coincident", 4, 2, 0, 1),
    Sketcher.Constraint("Vertical", 0),
    Sketcher.Constraint("Horizontal", 2),
    Sketcher.Constraint("Vertical", 3),
    Sketcher.Constraint("Horizontal", 4),
    Sketcher.Constraint("Vertical", 1, 3, 0, 2),
    Sketcher.Constraint("DistanceX", 1, 3, -1, 1, 5312.5),
    Sketcher.Constraint("Radius", 1, 662.613761),
    Sketcher.Constraint("DistanceX", 2, 2, 2, 1, 953.86462),
    Sketcher.Constraint("DistanceX", 4, 1, 4, 2, 1336.98261),
    Sketcher.Constraint("DistanceY", 0, 1, 0, 2, 126.572847),
    Sketcher.Constraint("DistanceY", -1, 1, 2, 2, 67.217731),
])
pocket1 = body.newObject("PartDesign::Pocket", "Pocket")
pocket1.Profile = sketch12
pocket1.Length = 3500

doc.recompute()
